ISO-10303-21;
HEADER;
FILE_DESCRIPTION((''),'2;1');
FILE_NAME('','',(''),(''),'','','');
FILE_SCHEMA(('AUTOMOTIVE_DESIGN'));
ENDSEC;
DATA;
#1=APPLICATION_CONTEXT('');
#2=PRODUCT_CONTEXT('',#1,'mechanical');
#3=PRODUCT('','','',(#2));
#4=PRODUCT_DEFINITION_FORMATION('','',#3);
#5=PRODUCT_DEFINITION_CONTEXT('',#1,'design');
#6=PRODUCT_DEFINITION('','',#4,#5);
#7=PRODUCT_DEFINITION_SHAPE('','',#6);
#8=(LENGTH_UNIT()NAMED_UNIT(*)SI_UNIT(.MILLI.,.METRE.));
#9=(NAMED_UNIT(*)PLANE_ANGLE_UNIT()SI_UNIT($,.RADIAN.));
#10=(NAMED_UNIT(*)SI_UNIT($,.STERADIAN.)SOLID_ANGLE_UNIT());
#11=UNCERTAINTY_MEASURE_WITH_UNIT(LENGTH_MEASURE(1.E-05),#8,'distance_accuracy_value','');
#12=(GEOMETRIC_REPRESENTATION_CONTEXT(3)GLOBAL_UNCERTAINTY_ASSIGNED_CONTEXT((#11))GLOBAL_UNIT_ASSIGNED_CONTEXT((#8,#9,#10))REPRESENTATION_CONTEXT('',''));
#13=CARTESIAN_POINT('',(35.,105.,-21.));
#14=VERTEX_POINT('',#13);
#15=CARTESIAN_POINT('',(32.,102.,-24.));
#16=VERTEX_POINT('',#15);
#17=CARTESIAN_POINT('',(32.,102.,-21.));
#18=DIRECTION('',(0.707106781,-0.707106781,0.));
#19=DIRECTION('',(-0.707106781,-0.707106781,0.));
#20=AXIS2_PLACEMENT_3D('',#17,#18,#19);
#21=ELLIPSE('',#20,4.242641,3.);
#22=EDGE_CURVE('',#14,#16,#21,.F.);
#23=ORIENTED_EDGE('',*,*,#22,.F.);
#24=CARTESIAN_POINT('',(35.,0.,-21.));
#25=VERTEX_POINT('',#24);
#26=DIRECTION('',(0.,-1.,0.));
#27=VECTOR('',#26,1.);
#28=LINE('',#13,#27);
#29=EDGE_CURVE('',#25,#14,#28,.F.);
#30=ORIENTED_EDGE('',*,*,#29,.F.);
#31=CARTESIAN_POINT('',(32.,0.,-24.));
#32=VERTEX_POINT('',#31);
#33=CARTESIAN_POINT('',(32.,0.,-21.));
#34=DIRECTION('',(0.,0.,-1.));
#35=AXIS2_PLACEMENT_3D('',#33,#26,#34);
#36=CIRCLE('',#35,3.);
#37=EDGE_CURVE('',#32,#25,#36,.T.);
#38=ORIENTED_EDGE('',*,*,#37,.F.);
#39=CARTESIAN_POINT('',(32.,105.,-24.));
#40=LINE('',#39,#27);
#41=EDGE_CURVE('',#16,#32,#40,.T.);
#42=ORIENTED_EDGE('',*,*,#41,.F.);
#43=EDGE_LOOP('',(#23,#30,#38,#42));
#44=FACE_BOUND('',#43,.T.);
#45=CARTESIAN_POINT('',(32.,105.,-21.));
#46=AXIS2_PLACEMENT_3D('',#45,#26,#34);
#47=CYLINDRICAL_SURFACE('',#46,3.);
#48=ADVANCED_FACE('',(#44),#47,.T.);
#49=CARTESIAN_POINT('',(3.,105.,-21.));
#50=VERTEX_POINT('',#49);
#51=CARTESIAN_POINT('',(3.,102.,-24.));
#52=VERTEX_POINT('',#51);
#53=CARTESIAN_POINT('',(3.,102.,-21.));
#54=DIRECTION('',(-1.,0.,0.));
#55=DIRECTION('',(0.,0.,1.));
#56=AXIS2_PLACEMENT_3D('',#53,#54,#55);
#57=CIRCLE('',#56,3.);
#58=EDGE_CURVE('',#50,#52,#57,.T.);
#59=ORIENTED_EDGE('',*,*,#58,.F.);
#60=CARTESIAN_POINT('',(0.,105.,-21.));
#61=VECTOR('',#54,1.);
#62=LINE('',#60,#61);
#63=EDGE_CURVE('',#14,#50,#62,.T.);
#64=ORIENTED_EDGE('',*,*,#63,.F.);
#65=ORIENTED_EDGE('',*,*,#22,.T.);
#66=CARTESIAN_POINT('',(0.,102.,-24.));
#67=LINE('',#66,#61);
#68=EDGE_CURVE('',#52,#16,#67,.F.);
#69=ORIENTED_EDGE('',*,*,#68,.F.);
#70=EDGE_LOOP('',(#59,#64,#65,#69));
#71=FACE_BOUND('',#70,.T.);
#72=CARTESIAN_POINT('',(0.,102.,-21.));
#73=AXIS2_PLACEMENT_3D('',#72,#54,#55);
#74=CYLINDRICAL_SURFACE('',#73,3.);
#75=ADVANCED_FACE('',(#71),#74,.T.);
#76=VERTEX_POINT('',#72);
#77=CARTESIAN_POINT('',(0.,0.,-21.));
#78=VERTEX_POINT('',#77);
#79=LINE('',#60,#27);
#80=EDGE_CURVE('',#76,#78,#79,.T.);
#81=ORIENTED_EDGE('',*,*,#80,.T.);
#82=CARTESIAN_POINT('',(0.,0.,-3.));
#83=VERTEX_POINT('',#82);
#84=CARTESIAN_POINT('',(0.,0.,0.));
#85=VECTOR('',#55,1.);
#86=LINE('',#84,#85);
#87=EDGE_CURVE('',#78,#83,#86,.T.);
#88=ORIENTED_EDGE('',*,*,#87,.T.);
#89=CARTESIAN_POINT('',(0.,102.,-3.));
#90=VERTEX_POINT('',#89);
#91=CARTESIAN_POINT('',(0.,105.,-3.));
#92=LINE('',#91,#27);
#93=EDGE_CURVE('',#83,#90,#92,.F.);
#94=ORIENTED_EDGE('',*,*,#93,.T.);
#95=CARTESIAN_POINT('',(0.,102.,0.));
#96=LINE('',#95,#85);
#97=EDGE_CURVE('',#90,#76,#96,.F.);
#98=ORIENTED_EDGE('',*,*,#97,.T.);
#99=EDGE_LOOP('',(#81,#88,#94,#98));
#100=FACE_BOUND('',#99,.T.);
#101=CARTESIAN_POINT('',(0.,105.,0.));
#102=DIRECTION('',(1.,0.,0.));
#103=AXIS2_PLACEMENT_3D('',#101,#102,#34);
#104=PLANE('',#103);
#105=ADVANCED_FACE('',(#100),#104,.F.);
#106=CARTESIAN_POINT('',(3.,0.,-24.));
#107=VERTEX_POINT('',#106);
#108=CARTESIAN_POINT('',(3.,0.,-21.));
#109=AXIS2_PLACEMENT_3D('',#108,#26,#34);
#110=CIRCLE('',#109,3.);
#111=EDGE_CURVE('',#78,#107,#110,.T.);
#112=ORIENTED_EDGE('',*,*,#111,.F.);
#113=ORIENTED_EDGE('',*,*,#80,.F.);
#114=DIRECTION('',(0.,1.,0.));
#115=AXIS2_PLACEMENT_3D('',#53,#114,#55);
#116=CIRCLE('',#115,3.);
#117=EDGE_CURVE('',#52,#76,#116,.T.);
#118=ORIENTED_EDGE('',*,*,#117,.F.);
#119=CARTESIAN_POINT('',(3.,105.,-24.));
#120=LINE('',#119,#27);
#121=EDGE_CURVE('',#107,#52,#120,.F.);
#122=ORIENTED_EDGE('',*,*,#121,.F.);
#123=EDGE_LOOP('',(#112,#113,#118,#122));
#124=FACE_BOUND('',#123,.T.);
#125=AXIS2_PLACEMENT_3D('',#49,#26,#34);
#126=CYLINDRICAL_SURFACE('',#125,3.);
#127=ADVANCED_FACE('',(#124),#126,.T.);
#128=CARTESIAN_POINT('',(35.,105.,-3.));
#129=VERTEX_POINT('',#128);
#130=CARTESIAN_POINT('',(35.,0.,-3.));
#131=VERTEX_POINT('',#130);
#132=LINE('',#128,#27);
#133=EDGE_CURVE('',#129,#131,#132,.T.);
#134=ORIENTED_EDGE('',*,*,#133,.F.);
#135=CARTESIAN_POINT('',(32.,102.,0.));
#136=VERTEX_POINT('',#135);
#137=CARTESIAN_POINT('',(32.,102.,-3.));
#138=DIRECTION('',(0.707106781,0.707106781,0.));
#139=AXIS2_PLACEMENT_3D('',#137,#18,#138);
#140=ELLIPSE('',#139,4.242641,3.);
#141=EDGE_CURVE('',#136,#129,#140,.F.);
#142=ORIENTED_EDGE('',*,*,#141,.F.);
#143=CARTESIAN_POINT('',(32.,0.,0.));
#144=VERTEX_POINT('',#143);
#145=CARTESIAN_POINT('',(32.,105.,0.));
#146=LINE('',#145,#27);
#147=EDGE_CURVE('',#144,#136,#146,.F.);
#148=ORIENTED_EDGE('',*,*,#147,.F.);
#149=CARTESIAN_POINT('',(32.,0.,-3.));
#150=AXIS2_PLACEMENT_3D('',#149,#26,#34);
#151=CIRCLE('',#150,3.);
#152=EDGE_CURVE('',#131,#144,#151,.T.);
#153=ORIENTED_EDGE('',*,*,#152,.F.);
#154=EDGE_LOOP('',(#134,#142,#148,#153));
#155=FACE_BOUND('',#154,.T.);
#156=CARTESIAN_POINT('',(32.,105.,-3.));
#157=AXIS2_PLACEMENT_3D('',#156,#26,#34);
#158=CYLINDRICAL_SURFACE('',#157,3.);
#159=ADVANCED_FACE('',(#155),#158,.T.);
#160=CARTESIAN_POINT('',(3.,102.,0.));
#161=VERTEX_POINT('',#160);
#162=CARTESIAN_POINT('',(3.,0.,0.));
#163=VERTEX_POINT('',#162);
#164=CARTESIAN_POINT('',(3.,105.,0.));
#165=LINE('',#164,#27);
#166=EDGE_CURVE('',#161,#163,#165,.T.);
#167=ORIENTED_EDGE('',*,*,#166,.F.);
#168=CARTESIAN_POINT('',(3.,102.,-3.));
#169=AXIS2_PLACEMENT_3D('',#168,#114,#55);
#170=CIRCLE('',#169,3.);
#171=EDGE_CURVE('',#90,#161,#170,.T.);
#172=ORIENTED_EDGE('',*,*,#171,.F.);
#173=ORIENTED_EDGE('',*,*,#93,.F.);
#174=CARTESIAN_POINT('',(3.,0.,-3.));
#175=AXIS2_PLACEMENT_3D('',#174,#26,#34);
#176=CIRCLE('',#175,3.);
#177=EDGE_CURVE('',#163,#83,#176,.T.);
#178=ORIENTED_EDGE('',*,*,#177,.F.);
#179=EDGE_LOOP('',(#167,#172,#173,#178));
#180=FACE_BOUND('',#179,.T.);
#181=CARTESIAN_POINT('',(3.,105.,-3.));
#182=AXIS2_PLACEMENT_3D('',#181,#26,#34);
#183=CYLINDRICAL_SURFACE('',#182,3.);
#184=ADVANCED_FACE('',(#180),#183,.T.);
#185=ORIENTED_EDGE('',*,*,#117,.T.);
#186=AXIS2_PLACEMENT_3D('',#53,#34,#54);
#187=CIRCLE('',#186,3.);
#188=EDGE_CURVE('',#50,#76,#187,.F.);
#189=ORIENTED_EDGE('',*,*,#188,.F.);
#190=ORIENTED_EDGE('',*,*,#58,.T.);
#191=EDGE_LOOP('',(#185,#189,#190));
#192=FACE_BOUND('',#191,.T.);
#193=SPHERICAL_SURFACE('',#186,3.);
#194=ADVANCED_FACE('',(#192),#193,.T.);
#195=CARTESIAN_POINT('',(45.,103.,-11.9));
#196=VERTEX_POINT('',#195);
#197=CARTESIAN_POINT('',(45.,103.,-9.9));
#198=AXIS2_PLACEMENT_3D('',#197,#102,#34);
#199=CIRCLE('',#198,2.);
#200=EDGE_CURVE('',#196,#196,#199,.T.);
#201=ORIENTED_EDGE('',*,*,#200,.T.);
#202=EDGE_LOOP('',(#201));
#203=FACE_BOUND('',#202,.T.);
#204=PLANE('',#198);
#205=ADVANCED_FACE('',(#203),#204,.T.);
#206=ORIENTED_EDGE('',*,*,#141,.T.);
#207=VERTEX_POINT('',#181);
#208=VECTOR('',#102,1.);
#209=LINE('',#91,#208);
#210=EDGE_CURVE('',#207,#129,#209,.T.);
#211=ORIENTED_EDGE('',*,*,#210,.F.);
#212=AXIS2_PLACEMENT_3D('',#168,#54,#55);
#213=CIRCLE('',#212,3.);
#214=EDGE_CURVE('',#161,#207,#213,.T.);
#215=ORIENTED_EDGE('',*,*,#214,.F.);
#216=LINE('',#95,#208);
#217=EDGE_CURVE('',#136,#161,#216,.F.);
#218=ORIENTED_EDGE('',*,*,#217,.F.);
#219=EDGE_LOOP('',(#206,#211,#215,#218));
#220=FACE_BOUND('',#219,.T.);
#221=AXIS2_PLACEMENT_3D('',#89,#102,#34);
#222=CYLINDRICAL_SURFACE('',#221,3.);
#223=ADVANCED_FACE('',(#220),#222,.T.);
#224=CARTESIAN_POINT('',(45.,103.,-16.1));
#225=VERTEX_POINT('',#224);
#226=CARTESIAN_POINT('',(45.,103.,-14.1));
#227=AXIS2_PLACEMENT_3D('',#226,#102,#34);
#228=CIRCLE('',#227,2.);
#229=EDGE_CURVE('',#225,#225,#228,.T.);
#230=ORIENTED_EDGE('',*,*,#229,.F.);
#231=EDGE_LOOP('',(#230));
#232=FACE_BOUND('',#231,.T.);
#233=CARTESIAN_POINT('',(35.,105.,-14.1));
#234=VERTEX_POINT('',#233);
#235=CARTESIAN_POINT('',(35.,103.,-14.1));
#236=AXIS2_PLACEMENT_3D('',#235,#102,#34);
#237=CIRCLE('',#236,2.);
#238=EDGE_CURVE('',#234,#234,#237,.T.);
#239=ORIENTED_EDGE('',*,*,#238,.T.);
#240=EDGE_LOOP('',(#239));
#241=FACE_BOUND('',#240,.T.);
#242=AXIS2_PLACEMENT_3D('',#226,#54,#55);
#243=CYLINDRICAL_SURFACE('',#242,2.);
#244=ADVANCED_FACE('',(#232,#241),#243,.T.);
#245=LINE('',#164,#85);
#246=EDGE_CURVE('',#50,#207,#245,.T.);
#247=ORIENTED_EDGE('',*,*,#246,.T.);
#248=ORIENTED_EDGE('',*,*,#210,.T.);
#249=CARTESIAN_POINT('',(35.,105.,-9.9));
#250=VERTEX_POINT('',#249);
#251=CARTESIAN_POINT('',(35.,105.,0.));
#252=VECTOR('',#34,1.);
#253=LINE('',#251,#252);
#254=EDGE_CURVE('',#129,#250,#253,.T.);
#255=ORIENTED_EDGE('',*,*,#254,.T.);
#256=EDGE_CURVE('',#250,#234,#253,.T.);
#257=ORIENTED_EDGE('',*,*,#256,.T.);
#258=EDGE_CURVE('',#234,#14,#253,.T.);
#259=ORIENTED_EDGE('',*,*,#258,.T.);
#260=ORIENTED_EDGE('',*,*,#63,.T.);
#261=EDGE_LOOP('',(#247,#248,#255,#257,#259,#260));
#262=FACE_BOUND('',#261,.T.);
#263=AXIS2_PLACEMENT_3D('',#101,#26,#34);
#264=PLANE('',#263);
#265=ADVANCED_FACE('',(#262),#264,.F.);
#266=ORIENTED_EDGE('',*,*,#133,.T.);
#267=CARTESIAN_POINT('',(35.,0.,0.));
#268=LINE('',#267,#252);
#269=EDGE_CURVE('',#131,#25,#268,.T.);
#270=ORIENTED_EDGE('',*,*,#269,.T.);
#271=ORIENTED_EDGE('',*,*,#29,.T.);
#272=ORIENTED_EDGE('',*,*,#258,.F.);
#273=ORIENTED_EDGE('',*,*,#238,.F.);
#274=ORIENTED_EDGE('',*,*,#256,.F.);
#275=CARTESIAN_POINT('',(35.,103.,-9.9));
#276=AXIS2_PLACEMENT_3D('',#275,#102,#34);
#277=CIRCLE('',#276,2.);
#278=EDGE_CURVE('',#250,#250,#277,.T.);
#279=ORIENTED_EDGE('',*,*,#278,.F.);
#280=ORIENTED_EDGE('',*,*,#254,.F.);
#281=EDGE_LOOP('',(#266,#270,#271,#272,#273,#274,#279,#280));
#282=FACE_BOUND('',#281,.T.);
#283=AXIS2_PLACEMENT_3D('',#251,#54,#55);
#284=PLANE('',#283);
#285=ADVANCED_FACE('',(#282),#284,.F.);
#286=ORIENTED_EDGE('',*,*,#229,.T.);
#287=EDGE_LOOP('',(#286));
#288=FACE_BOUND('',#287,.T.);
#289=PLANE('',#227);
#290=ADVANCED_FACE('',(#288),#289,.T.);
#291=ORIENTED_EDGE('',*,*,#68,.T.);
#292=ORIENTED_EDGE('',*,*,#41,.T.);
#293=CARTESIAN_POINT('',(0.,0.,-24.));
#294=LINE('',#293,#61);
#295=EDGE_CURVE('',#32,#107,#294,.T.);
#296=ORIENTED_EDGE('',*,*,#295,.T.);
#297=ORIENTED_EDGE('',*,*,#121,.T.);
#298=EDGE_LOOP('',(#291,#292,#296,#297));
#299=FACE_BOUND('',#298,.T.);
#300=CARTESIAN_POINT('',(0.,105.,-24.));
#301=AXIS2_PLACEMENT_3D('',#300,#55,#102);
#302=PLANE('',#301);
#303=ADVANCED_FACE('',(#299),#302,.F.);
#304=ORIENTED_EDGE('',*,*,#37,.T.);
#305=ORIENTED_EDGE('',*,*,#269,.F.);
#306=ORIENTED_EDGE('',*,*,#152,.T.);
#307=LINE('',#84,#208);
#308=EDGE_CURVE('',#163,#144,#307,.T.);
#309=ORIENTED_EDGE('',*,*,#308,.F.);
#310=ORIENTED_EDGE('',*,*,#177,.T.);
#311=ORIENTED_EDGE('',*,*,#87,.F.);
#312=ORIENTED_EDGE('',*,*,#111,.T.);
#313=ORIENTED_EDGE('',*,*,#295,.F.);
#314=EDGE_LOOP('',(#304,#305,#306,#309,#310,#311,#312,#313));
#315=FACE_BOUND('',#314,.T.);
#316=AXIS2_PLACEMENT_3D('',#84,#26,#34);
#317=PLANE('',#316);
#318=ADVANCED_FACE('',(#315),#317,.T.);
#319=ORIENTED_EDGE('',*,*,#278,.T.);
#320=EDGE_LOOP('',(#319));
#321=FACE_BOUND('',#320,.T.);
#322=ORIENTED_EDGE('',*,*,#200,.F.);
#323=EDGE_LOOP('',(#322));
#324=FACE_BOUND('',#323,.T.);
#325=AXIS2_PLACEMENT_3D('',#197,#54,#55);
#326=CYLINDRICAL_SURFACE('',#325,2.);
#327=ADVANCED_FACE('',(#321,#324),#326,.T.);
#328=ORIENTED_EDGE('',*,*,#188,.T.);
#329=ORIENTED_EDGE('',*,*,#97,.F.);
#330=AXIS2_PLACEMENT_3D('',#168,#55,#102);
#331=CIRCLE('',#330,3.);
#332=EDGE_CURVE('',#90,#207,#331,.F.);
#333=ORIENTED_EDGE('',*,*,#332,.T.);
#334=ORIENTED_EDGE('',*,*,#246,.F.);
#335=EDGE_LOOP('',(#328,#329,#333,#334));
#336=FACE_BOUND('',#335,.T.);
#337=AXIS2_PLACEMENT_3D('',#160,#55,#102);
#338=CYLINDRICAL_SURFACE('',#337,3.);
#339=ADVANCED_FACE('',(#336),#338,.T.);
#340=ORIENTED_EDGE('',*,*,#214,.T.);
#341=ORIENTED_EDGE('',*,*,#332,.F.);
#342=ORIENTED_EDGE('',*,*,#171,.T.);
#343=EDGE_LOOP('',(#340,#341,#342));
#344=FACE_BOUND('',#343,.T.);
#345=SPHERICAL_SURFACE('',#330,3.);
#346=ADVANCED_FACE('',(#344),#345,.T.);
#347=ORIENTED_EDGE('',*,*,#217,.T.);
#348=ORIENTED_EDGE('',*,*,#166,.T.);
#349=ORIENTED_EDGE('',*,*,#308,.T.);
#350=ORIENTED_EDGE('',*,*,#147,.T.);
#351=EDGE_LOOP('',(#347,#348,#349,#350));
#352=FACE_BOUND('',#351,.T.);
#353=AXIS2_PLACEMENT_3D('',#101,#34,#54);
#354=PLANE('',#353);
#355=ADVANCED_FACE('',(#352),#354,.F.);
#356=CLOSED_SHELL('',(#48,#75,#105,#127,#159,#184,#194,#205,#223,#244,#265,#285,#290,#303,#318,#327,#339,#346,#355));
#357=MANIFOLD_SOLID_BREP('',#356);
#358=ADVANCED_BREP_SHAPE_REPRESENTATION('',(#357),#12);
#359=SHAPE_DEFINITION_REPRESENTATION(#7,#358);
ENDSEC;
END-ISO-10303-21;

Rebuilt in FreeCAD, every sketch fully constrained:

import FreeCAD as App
import Part
import Sketcher
Q = App.Units.Quantity


def edges_at(feature, points):
    """Names of the edges that pass closest to the given points."""
    edges = feature.Shape.Edges
    near = lambda p: min(range(len(edges)), key=lambda i: edges[i].distToShape(Part.Vertex(*p))[0])
    return sorted({f"Edge{near(p) + 1}" for p in points})


def add_polygon(sketch, points):
    """Adds a closed chain of lines whose ends are joined by coincident constraints."""
    first, n = sketch.GeometryCount, len(points)
    for a, b in zip(points, points[1:] + points[:1]):
        sketch.addGeometry(Part.LineSegment(App.Vector(*a, 0), App.Vector(*b, 0)), False)
    for i in range(n):
        sketch.addConstraint(Sketcher.Constraint("Coincident", first + i, 2, first + (i + 1) % n, 1))

doc = App.newDocument("Part")
body = doc.addObject("PartDesign::Body", "Body")

sketch1 = doc.addObject("Sketcher::SketchObject", "Sketch")
body.addObject(sketch1)
sketch1.AttachmentSupport = (doc.XZ_Plane, [""])
sketch1.MapMode = "FlatFace"
add_polygon(sketch1, [(0, -24), (0, 0), (35, 0), (35, -24)])
sketch1.addConstraint([
    Sketcher.Constraint("Vertical", 0),
    Sketcher.Constraint("Horizontal", 1),
    Sketcher.Constraint("Vertical", 2),
    Sketcher.Constraint("Horizontal", 3),
    Sketcher.Constraint("Coincident", 0, 2, -1, 1),
    Sketcher.Constraint("DistanceX", 1, 1, 1, 2, Q("35 mm")),
    Sketcher.Constraint("DistanceY", 0, 1, 0, 2, Q("24 mm")),
])
pad1 = doc.addObject("PartDesign::Pad", "Pad")
body.addObject(pad1)
pad1.Profile = sketch1
pad1.Length = 105
pad1.Reversed = True

sketch2 = doc.addObject("Sketcher::SketchObject", "Sketch001")
body.addObject(sketch2)
sketch2.AttachmentSupport = (doc.YZ_Plane, [""])
sketch2.MapMode = "FlatFace"
sketch2.AttachmentOffset = App.Placement(App.Vector(0, 0, 35), App.Rotation())
sketch2.addGeometry([
    Part.Circle(App.Vector(103, -9.9, 0), App.Vector(0, 0, 1), 2),
    Part.Circle(App.Vector(103, -14.1, 0), App.Vector(0, 0, 1), 2),
], False)
sketch2.addConstraint([
    Sketcher.Constraint("Equal", 0, 1),
    Sketcher.Constraint("Vertical", 0, 3, 1, 3),
    Sketcher.Constraint("Diameter", 0, Q("4 mm")),
    Sketcher.Constraint("DistanceX", -1, 1, 0, 3, Q("103 mm")),
    Sketcher.Constraint("DistanceY", 0, 3, -1, 1, Q("9.9 mm")),
    Sketcher.Constraint("DistanceY", 1, 3, -1, 1, Q("14.1 mm")),
])
pad2 = doc.addObject("PartDesign::Pad", "Pad001")
body.addObject(pad2)
pad2.Profile = sketch2
pad2.Length = 10
doc.recompute()

fillet = doc.addObject("PartDesign::Fillet", "Fillet")
body.addObject(fillet)
fillet.Base = (pad2, edges_at(pad2, [
    (17.5, 105, -24),
    (0, 105, -12),
    (0, 52.5, -24),
    (35, 52.5, -24),
    (35, 52.5, 0),
    (0, 52.5, 0),
    (17.5, 105, 0),
]))
fillet.Radius = 3

doc.recompute()
